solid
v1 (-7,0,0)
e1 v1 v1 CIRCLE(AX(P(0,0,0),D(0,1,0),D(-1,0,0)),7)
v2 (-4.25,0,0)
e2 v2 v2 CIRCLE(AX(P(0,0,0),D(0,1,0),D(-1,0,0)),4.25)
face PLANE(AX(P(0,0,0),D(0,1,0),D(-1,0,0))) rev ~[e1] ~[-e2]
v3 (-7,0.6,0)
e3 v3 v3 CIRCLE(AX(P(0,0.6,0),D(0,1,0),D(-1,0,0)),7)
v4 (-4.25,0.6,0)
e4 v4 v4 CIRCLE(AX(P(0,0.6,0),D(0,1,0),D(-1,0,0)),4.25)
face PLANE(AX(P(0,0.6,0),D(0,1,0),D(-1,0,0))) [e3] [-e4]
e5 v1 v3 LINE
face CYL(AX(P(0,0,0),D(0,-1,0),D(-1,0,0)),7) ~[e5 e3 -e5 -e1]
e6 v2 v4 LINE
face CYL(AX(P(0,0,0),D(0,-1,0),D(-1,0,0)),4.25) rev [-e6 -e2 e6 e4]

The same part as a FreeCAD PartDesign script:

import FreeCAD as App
import Part
import Sketcher

doc = App.newDocument("Part")
body = doc.addObject("PartDesign::Body", "Body")

# Sketch on XZ plane
sketch1 = body.newObject("Sketcher::SketchObject", "Sketch")
sketch1.AttachmentSupport = (doc.getObject("XZ_Plane"), [""])
sketch1.MapMode = "FlatFace"
sketch1.addGeometry(Part.Circle(App.Vector(0, 0, 0), App.Vector(0, 0, 1), 7), False)
sketch1.addGeometry(Part.Circle(App.Vector(0, 0, 0), App.Vector(0, 0, 1), 4.2), False)
sketch1.addConstraint(Sketcher.Constraint("Coincident", 0, 3, -1, 1))
sketch1.addConstraint(Sketcher.Constraint("Coincident", 1, 3, -1, 1))
sketch1.addConstraint(Sketcher.Constraint("Diameter", 0, 14.0))
sketch1.addConstraint(Sketcher.Constraint("Diameter", 1, 8.5))
pad1 = body.newObject("PartDesign::Pad", "Pad")
pad1.Profile = sketch1
pad1.Length = 0.6
pad1.Reversed = True

doc.recompute()
